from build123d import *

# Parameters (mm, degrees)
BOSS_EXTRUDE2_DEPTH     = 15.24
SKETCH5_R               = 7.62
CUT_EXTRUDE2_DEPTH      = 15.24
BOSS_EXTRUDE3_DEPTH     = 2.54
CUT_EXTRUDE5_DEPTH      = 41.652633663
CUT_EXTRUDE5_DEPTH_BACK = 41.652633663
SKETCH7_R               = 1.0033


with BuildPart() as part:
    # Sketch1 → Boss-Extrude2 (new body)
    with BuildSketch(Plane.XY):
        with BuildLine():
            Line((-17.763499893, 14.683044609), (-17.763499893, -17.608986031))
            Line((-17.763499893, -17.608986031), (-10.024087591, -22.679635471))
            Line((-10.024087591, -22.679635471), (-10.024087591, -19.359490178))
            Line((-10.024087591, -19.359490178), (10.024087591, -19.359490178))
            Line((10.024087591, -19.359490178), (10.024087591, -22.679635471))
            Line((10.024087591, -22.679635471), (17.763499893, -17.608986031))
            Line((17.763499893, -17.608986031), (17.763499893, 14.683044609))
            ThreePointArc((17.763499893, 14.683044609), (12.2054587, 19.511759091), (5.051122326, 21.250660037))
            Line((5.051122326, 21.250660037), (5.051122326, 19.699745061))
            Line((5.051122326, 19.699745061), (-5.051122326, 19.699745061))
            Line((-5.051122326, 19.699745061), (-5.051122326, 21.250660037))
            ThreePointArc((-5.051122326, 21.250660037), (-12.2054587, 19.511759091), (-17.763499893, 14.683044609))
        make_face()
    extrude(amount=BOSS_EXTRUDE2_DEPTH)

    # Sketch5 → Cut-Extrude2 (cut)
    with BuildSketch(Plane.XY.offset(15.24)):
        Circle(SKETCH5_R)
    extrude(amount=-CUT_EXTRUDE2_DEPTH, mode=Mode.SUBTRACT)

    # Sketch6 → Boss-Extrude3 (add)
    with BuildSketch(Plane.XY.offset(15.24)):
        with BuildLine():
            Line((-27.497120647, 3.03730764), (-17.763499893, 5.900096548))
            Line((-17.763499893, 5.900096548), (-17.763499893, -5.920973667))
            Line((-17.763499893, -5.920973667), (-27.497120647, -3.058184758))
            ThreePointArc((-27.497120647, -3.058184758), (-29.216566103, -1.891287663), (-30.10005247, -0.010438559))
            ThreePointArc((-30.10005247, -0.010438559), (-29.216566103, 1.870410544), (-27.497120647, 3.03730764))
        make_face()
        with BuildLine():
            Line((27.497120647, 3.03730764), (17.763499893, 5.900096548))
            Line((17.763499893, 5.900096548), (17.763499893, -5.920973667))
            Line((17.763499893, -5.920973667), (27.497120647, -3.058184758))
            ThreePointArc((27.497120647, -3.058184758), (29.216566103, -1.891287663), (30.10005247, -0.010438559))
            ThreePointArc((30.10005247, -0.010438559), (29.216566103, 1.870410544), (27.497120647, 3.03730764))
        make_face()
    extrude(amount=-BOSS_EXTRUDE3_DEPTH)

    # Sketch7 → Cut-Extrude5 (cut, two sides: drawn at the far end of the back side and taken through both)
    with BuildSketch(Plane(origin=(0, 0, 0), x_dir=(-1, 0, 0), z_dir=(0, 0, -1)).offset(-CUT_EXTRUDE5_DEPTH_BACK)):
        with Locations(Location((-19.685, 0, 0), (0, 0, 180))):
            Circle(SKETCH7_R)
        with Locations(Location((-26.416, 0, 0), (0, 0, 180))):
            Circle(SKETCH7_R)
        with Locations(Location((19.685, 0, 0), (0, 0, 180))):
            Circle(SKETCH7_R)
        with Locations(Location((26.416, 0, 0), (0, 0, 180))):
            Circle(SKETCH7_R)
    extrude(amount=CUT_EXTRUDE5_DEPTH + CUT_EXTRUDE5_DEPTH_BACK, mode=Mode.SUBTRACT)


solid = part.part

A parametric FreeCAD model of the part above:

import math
import FreeCAD as App
import Part
import Sketcher
Q = App.Units.Quantity

doc = App.newDocument("Part")
body = doc.addObject("PartDesign::Body", "Body")

# Sketch on XY plane
sketch1 = body.newObject("Sketcher::SketchObject", "Sketch")
sketch1.AttachmentSupport = (doc.getObject("XY_Plane"), [""])
sketch1.MapMode = "FlatFace"
sketch1.addGeometry([
    Part.LineSegment(App.Vector(-17.8, 14.7, 0), App.Vector(-17.8, -17.6, 0)),  # 0
    Part.LineSegment(App.Vector(-17.8, -17.6, 0), App.Vector(-10, -22.7, 0)),  # 1
    Part.LineSegment(App.Vector(-10, -22.7, 0), App.Vector(-10, -19.4, 0)),  # 2
    Part.LineSegment(App.Vector(-10, -19.4, 0), App.Vector(10, -19.4, 0)),  # 3
    Part.LineSegment(App.Vector(10, -19.4, 0), App.Vector(10, -22.7, 0)),  # 4
    Part.LineSegment(App.Vector(10, -22.7, 0), App.Vector(17.8, -17.6, 0)),  # 5
    Part.LineSegment(App.Vector(17.8, -17.6, 0), App.Vector(17.8, 14.7, 0)),  # 6
    Part.ArcOfCircle(Part.Circle(App.Vector(5.1, 5.7, 0), App.Vector(0, 0, 1), 15.6), math.radians(35), math.radians(90)),  # 7
    Part.LineSegment(App.Vector(5.1, 21.3, 0), App.Vector(5.1, 19.7, 0)),  # 8
    Part.LineSegment(App.Vector(5.1, 19.7, 0), App.Vector(-5.1, 19.7, 0)),  # 9
    Part.LineSegment(App.Vector(-5.1, 19.7, 0), App.Vector(-5.1, 21.3, 0)),  # 10
    Part.ArcOfCircle(Part.Circle(App.Vector(-5.1, 5.7, 0), App.Vector(0, 0, 1), 15.6), math.radians(90), math.radians(145)),  # 11
], False)
sketch1.addConstraint([
    Sketcher.Constraint("Coincident", 0, 2, 1, 1),
    Sketcher.Constraint("Coincident", 1, 2, 2, 1),
    Sketcher.Constraint("Coincident", 2, 2, 3, 1),
    Sketcher.Constraint("Coincident", 3, 2, 4, 1),
    Sketcher.Constraint("Coincident", 4, 2, 5, 1),
    Sketcher.Constraint("Coincident", 5, 2, 6, 1),
    Sketcher.Constraint("Coincident", 6, 2, 7, 1),
    Sketcher.Constraint("Coincident", 7, 2, 8, 1),
    Sketcher.Constraint("Coincident", 8, 2, 9, 1),
    Sketcher.Constraint("Coincident", 9, 2, 10, 1),
    Sketcher.Constraint("Coincident", 10, 2, 11, 1),
    Sketcher.Constraint("Coincident", 11, 2, 0, 1),
    Sketcher.Constraint("Vertical", 0),
    Sketcher.Constraint("Vertical", 2),
    Sketcher.Constraint("Horizontal", 3),
    Sketcher.Constraint("Vertical", 4),
    Sketcher.Constraint("Vertical", 6),
    Sketcher.Constraint("Vertical", 8),
    Sketcher.Constraint("Horizontal", 9),
    Sketcher.Constraint("Vertical", 10),
    Sketcher.Constraint("Equal", 7, 11),
    Sketcher.Constraint("Symmetric", 7, 3, 11, 3, -2),
    Sketcher.Constraint("Symmetric", 1, 2, 4, 2, -2),
    Sketcher.Constraint("Symmetric", 0, 2, 5, 2, -2),
    Sketcher.Constraint("Vertical", 11, 3, 9, 2),
    Sketcher.Constraint("Radius", 7, 15.586945),
    Sketcher.Constraint("DistanceY", 0, 2, 0, 1, 32.292031),
    Sketcher.Constraint("DistanceX", 0, 2, -1, 1, 17.7635),
    Sketcher.Constraint("DistanceY", 0, 2, 11, 3, 23.272701),
    Sketcher.Constraint("DistanceY", 6, 2, 8, 2, 5.0167),
    Sketcher.Constraint("DistanceX", 3, 1, 3, 2, 20.048175),
    Sketcher.Constraint("DistanceX", 9, 2, 9, 1, 10.102245),
    Sketcher.Constraint("DistanceY", 2, 1, 2, 2, 3.320145),
    Sketcher.Constraint("DistanceY", 2, 2, -1, 1, 19.35949),
    Sketcher.Constraint("DistanceY", -1, 1, 7, 2, 21.25066),
])
pad1 = body.newObject("PartDesign::Pad", "Pad")
pad1.Profile = sketch1
pad1.Length = Q("0.6 in")

# Sketch on XY plane
sketch2 = body.newObject("Sketcher::SketchObject", "Sketch001")
sketch2.AttachmentSupport = (doc.getObject("XY_Plane"), [""])
sketch2.MapMode = "FlatFace"
sketch2.AttachmentOffset = App.Placement(App.Vector(0, 0, 0.6 * 25.4), App.Rotation())
sketch2.addGeometry(Part.Circle(App.Vector(0, 0, 0), App.Vector(0, 0, 1), 8), False)
sketch2.addConstraint([
    Sketcher.Constraint("Coincident", 0, 3, -1, 1),
    Sketcher.Constraint("Diameter", 0, Q("0.6 in")),
])
pocket1 = body.newObject("PartDesign::Pocket", "Pocket")
pocket1.Profile = sketch2
pocket1.Length = Q("0.6 in")

# Sketch on XY plane
sketch3 = body.newObject("Sketcher::SketchObject", "Sketch002")
sketch3.AttachmentSupport = (doc.getObject("XY_Plane"), [""])
sketch3.MapMode = "FlatFace"
sketch3.AttachmentOffset = App.Placement(App.Vector(0, 0, 0.6 * 25.4), App.Rotation())
sketch3.addGeometry([
    Part.LineSegment(App.Vector(-17.8, 5.9, 0), App.Vector(-27.5, 3, 0)),  # 0
    Part.ArcOfCircle(Part.Circle(App.Vector(-26.2, -0.7, 0), App.Vector(0, 0, 1), 3.9), math.radians(109), math.radians(170)),  # 1
    Part.ArcOfCircle(Part.Circle(App.Vector(-26.2, 0.7, 0), App.Vector(0, 0, 1), 3.9), math.radians(-170), math.radians(-109)),  # 2
    Part.LineSegment(App.Vector(-27.5, -3.1, 0), App.Vector(-17.8, -5.9, 0)),  # 3
    Part.LineSegment(App.Vector(-17.8, -5.9, 0), App.Vector(-17.8, 5.9, 0)),  # 4
    Part.LineSegment(App.Vector(27.5, 3, 0), App.Vector(17.8, 5.9, 0)),  # 5
    Part.LineSegment(App.Vector(17.8, 5.9, 0), App.Vector(17.8, -5.9, 0)),  # 6
    Part.LineSegment(App.Vector(17.8, -5.9, 0), App.Vector(27.5, -3.1, 0)),  # 7
    Part.ArcOfCircle(Part.Circle(App.Vector(26.2, 0.7, 0), App.Vector(0, 0, 1), 3.9), math.radians(-71), math.radians(-10)),  # 8
    Part.ArcOfCircle(Part.Circle(App.Vector(26.2, -0.7, 0), App.Vector(0, 0, 1), 3.9), math.radians(10), math.radians(71)),  # 9
], False)
sketch3.addConstraint([
    Sketcher.Constraint("Coincident", 0, 2, 1, 1),
    Sketcher.Constraint("Coincident", 1, 2, 2, 1),
    Sketcher.Constraint("Coincident", 2, 2, 3, 1),
    Sketcher.Constraint("Coincident", 3, 2, 4, 1),
    Sketcher.Constraint("Coincident", 4, 2, 0, 1),
    Sketcher.Constraint("Coincident", 5, 2, 6, 1),
    Sketcher.Constraint("Coincident", 6, 2, 7, 1),
    Sketcher.Constraint("Coincident", 7, 2, 8, 1),
    Sketcher.Constraint("Coincident", 8, 2, 9, 1),
    Sketcher.Constraint("Coincident", 9, 2, 5, 1),
    Sketcher.Constraint("Vertical", 4),
    Sketcher.Constraint("Vertical", 6),
    Sketcher.Constraint("Equal", 1, 2),
    Sketcher.Constraint("Equal", 2, 8),
    Sketcher.Constraint("Equal", 8, 9),
    Sketcher.Constraint("Symmetric", 2, 3, 8, 3, -2),
    Sketcher.Constraint("Symmetric", 1, 3, 9, 3, -2),
    Sketcher.Constraint("Symmetric", 4, 2, 5, 2, -2),
    Sketcher.Constraint("Parallel", 3, 5),
    Sketcher.Constraint("Parallel", 0, 7),
    Sketcher.Constraint("Horizontal", 3, 2, 6, 2),
    Sketcher.Constraint("Horizontal", 2, 2, 7, 2),
    Sketcher.Constraint("Vertical", 1, 3, 2, 3),
    Sketcher.Constraint("Vertical", 0, 2, 2, 2),
    Sketcher.Constraint("Radius", 1, 3.927929),
    Sketcher.Constraint("DistanceY", 4, 1, 4, 2, 11.82107),
    Sketcher.Constraint("DistanceX", 3, 2, -1, 1, 17.7635),
    Sketcher.Constraint("DistanceX", 2, 3, 5, 2, 43.993202),
    Sketcher.Constraint("DistanceX", 0, 2, -1, 1, 27.497121),
    Sketcher.Constraint("DistanceY", 1, 2, -1, 1, 0.010439),
    Sketcher.Constraint("DistanceY", 2, 3, 0, 2, 2.37766),
])
pad2 = body.newObject("PartDesign::Pad", "Pad001")
pad2.Profile = sketch3
pad2.Length = Q("0.1 in")
pad2.Reversed = True

# Sketch on XY plane
sketch4 = body.newObject("Sketcher::SketchObject", "Sketch003")
sketch4.AttachmentSupport = (doc.getObject("XY_Plane"), [""])
sketch4.MapMode = "FlatFace"
sketch4.addGeometry([
    Part.Circle(App.Vector(19.7, 0, 0), App.Vector(0, 0, 1), 1),
    Part.Circle(App.Vector(26.4, 0, 0), App.Vector(0, 0, 1), 1),
    Part.Circle(App.Vector(-19.7, 0, 0), App.Vector(0, 0, 1), 1),
    Part.Circle(App.Vector(-26.4, 0, 0), App.Vector(0, 0, 1), 1),
], False)
sketch4.addConstraint([
    Sketcher.Constraint("Equal", 0, 1),
    Sketcher.Constraint("Equal", 1, 2),
    Sketcher.Constraint("Equal", 2, 3),
    Sketcher.Constraint("Symmetric", 0, 3, 2, 3, -1, 1),
    Sketcher.Constraint("Symmetric", 1, 3, 3, 3, -1, 1),
    Sketcher.Constraint("PointOnObject", 0, 3, -1),
    Sketcher.Constraint("PointOnObject", 1, 3, -1),
    Sketcher.Constraint("Diameter", 0, Q("0.079 in")),
    Sketcher.Constraint("DistanceX", -1, 1, 1, 3, Q("1.04 in")),
    Sketcher.Constraint("DistanceX", 2, 3, 0, 3, Q("1.55 in")),
])
pocket2 = body.newObject("PartDesign::Pocket", "Pocket001")
pocket2.Profile = sketch4
pocket2.Type = "ThroughAll"
pocket2.Midplane = True

doc.recompute()
